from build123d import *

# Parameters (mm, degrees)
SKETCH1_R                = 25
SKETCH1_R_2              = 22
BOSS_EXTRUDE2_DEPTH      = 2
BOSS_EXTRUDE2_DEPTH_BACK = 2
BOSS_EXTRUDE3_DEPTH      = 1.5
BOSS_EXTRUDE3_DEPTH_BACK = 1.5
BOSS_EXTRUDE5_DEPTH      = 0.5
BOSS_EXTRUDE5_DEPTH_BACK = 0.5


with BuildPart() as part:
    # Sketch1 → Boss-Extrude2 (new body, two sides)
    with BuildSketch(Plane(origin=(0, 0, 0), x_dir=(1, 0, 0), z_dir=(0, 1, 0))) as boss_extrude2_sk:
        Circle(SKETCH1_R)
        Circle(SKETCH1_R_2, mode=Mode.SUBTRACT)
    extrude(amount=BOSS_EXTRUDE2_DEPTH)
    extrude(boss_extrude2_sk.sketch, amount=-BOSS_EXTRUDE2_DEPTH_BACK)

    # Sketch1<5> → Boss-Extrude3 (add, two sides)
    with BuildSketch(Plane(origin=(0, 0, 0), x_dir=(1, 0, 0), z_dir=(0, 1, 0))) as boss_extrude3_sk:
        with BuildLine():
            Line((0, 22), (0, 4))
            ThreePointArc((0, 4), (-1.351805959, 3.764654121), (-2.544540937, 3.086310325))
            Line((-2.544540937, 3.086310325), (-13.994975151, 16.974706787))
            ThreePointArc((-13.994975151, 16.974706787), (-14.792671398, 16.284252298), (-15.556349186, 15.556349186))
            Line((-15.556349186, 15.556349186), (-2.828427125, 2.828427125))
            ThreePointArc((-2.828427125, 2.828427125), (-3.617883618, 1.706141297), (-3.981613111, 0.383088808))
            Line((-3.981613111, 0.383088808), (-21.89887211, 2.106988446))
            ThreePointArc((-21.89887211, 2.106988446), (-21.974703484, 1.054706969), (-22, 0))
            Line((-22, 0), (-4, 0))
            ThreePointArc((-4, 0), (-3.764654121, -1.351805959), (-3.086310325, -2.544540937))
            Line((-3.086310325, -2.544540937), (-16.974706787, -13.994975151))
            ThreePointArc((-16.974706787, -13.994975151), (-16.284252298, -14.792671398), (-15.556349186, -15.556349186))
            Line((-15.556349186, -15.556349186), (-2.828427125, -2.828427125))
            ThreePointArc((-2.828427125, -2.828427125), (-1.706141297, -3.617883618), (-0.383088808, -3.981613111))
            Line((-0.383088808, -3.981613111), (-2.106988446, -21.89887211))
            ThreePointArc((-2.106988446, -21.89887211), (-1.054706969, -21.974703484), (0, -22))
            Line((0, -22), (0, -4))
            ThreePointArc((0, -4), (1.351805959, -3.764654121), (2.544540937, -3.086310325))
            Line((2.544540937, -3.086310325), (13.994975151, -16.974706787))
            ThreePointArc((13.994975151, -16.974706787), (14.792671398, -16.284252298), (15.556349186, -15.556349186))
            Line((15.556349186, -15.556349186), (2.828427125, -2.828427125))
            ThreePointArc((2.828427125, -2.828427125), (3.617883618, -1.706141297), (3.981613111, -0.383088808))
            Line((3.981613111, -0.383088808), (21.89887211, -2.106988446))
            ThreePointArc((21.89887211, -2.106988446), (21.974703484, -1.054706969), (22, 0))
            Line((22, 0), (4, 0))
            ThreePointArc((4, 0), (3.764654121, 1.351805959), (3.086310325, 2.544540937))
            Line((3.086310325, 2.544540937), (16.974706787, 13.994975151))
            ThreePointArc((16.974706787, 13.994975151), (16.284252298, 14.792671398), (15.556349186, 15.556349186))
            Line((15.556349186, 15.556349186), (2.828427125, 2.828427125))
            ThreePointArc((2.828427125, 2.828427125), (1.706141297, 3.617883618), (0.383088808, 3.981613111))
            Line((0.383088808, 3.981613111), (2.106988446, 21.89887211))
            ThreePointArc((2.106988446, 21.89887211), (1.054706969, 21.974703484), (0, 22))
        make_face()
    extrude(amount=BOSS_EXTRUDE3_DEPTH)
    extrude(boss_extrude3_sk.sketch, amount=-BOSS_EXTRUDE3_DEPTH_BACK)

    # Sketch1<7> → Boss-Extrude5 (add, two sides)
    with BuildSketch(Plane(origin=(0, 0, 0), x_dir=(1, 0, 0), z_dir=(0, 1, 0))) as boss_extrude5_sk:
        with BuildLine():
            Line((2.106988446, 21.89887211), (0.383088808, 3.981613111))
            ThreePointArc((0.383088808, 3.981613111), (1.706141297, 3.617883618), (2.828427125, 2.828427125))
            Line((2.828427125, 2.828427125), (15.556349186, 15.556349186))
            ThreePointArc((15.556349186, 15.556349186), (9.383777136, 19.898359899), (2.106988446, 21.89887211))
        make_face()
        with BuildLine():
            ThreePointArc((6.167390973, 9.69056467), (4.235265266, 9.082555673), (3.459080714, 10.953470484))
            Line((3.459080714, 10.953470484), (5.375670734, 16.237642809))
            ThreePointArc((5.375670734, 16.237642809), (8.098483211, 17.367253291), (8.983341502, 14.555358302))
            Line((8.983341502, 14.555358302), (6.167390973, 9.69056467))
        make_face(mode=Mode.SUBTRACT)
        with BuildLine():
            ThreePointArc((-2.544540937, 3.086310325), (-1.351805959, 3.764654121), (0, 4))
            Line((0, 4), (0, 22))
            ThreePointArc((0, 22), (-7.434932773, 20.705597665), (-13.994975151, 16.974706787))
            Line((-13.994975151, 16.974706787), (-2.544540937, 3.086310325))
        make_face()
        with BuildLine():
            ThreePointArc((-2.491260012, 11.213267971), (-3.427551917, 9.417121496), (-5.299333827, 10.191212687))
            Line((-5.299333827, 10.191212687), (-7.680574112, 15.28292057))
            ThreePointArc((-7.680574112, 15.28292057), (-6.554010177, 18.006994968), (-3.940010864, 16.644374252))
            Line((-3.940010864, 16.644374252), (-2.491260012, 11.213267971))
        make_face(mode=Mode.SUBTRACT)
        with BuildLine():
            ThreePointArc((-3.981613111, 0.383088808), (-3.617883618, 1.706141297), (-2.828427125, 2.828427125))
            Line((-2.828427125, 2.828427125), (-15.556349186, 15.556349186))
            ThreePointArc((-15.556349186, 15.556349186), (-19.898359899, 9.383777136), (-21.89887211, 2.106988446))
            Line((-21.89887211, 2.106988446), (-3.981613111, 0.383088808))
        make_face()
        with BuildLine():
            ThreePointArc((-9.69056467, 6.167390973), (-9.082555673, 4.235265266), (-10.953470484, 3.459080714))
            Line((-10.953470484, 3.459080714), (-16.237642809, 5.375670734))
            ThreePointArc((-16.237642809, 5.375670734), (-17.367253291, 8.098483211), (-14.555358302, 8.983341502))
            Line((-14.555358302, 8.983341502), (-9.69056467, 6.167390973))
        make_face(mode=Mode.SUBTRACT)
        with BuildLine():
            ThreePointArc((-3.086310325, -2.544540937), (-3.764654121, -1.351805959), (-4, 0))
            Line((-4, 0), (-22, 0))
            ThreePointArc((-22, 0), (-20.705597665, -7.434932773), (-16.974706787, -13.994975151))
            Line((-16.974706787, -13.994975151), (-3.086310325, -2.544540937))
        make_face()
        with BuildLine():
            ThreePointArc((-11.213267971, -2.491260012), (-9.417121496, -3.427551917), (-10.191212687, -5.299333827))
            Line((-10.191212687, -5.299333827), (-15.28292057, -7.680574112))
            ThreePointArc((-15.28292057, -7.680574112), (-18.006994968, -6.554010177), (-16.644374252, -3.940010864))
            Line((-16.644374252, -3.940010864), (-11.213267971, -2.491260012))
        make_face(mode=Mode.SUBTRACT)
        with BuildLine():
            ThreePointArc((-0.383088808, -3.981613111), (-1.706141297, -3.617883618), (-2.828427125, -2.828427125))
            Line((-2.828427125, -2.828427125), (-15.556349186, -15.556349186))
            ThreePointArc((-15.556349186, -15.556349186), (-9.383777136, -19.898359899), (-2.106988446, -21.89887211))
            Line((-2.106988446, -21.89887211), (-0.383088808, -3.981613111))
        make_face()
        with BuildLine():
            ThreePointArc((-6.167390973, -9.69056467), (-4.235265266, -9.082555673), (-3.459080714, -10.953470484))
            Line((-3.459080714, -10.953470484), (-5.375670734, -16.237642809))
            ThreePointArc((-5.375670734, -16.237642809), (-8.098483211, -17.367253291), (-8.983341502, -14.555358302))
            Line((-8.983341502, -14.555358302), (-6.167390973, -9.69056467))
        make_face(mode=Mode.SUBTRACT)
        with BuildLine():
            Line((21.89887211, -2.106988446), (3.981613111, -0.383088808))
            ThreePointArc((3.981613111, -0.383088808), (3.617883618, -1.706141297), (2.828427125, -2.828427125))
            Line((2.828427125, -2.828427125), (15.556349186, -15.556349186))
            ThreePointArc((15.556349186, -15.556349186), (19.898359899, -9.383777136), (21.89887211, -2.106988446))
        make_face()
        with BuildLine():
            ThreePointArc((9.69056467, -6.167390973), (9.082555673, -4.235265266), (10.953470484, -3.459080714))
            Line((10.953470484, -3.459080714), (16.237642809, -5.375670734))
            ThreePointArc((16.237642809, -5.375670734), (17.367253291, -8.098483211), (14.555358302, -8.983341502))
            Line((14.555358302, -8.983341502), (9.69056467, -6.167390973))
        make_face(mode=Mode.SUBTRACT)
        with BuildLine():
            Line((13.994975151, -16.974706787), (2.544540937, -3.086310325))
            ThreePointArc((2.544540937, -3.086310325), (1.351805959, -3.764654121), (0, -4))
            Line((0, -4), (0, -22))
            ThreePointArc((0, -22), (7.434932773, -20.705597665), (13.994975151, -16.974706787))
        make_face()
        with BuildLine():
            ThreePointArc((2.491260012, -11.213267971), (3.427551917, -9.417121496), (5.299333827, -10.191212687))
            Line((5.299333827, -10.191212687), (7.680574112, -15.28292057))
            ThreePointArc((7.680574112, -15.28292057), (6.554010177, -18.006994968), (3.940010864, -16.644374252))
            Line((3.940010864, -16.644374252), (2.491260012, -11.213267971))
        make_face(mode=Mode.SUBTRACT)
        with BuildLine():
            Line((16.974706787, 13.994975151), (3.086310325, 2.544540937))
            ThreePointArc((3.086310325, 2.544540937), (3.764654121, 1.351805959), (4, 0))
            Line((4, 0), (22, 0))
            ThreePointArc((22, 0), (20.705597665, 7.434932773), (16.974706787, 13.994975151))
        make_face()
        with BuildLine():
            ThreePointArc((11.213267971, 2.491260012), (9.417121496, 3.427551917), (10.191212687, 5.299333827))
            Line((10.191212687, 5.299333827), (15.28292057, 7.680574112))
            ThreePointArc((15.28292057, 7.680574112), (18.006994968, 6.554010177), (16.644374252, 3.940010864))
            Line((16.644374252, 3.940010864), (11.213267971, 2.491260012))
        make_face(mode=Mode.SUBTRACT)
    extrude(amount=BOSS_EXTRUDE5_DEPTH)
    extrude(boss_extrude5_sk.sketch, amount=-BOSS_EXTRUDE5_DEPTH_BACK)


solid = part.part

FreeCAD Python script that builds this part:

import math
import FreeCAD as App
import Part
import Sketcher
from FreeCAD import Vector

doc = App.newDocument("Part")
body = doc.addObject("PartDesign::Body", "Body")

# Sketch on XZ plane
sketch1 = body.newObject("Sketcher::SketchObject", "Sketch")
sketch1.AttachmentSupport = (doc.getObject("XZ_Plane"), [""])
sketch1.MapMode = "FlatFace"
sketch1.addGeometry(Part.Circle(Vector(0, 0, 0), Vector(0, 0, 1), 25), False)
sketch1.addGeometry(Part.Circle(Vector(0, 0, 0), Vector(0, 0, 1), 22), False)
sketch1.addConstraint(Sketcher.Constraint("Coincident", 0, 3, -1, 1))
sketch1.addConstraint(Sketcher.Constraint("Coincident", 1, 3, -1, 1))
sketch1.addConstraint(Sketcher.Constraint("Diameter", 0, 50.0))
sketch1.addConstraint(Sketcher.Constraint("Diameter", 1, 44.0))
pad1 = body.newObject("PartDesign::Pad", "Pad")
pad1.Profile = sketch1
pad1.Type = "TwoLengths"
pad1.Length = 2
pad1.Length2 = 2
pad1.Reversed = True

# Sketch on XZ plane
sketch2 = body.newObject("Sketcher::SketchObject", "Sketch001")
sketch2.AttachmentSupport = (doc.getObject("XZ_Plane"), [""])
sketch2.MapMode = "FlatFace"
sketch2.addGeometry(Part.LineSegment(Vector(0, -22, 0), Vector(0, -4, 0)), False)
sketch2.addGeometry(Part.ArcOfCircle(Part.Circle(Vector(0, 0, 0), Vector(0, 0, 1), 4), math.radians(-130), math.radians(-90)), False)
sketch2.addGeometry(Part.LineSegment(Vector(-2.5, -3.1, 0), Vector(-14, -17, 0)), False)
sketch2.addGeometry(Part.ArcOfCircle(Part.Circle(Vector(0, 0, 0), Vector(0, 0, 1), 22), math.radians(-135), math.radians(-129.5)), False)
sketch2.addGeometry(Part.LineSegment(Vector(-15.6, -15.6, 0), Vector(-2.8, -2.8, 0)), False)
sketch2.addGeometry(Part.ArcOfCircle(Part.Circle(Vector(0, 0, 0), Vector(0, 0, 1), 4), math.radians(-175), math.radians(-135)), False)
sketch2.addGeometry(Part.LineSegment(Vector(-4, -0.4, 0), Vector(-21.9, -2.1, 0)), False)
sketch2.addGeometry(Part.ArcOfCircle(Part.Circle(Vector(0, 0, 0), Vector(0, 0, 1), 22), math.radians(180), math.radians(185.5)), False)
sketch2.addGeometry(Part.LineSegment(Vector(-22, 0, 0), Vector(-4, 0, 0)), False)
sketch2.addGeometry(Part.ArcOfCircle(Part.Circle(Vector(0, 0, 0), Vector(0, 0, 1), 4), math.radians(140), math.radians(180)), False)
sketch2.addGeometry(Part.LineSegment(Vector(-3.1, 2.5, 0), Vector(-17, 14, 0)), False)
sketch2.addGeometry(Part.ArcOfCircle(Part.Circle(Vector(0, 0, 0), Vector(0, 0, 1), 22), math.radians(135), math.radians(140.5)), False)
sketch2.addGeometry(Part.LineSegment(Vector(-15.6, 15.6, 0), Vector(-2.8, 2.8, 0)), False)
sketch2.addGeometry(Part.ArcOfCircle(Part.Circle(Vector(0, 0, 0), Vector(0, 0, 1), 4), math.radians(95), math.radians(135)), False)
sketch2.addGeometry(Part.LineSegment(Vector(-0.4, 4, 0), Vector(-2.1, 21.9, 0)), False)
sketch2.addGeometry(Part.ArcOfCircle(Part.Circle(Vector(0, 0, 0), Vector(0, 0, 1), 22), math.radians(90), math.radians(95.5)), False)
sketch2.addGeometry(Part.LineSegment(Vector(0, 22, 0), Vector(0, 4, 0)), False)
sketch2.addGeometry(Part.ArcOfCircle(Part.Circle(Vector(0, 0, 0), Vector(0, 0, 1), 4), math.radians(50), math.radians(90)), False)
sketch2.addGeometry(Part.LineSegment(Vector(2.5, 3.1, 0), Vector(14, 17, 0)), False)
sketch2.addGeometry(Part.ArcOfCircle(Part.Circle(Vector(0, 0, 0), Vector(0, 0, 1), 22), math.radians(45), math.radians(50.5)), False)
sketch2.addGeometry(Part.LineSegment(Vector(15.6, 15.6, 0), Vector(2.8, 2.8, 0)), False)
sketch2.addGeometry(Part.ArcOfCircle(Part.Circle(Vector(0, 0, 0), Vector(0, 0, 1), 4), math.radians(5), math.radians(45)), False)
sketch2.addGeometry(Part.LineSegment(Vector(4, 0.4, 0), Vector(21.9, 2.1, 0)), False)
sketch2.addGeometry(Part.ArcOfCircle(Part.Circle(Vector(0, 0, 0), Vector(0, 0, 1), 22), math.radians(0), math.radians(5.5)), False)
sketch2.addGeometry(Part.LineSegment(Vector(22, 0, 0), Vector(4, 0, 0)), False)
sketch2.addGeometry(Part.ArcOfCircle(Part.Circle(Vector(0, 0, 0), Vector(0, 0, 1), 4), math.radians(-40), math.radians(0)), False)
sketch2.addGeometry(Part.LineSegment(Vector(3.1, -2.5, 0), Vector(17, -14, 0)), False)
sketch2.addGeometry(Part.ArcOfCircle(Part.Circle(Vector(0, 0, 0), Vector(0, 0, 1), 22), math.radians(-45), math.radians(-39.5)), False)
sketch2.addGeometry(Part.LineSegment(Vector(15.6, -15.6, 0), Vector(2.8, -2.8, 0)), False)
sketch2.addGeometry(Part.ArcOfCircle(Part.Circle(Vector(0, 0, 0), Vector(0, 0, 1), 4), math.radians(-85), math.radians(-45)), False)
sketch2.addGeometry(Part.LineSegment(Vector(0.4, -4, 0), Vector(2.1, -21.9, 0)), False)
sketch2.addGeometry(Part.ArcOfCircle(Part.Circle(Vector(0, 0, 0), Vector(0, 0, 1), 22), math.radians(-90), math.radians(-84.5)), False)
sketch2.addConstraint(Sketcher.Constraint("Coincident", 0, 2, 1, 2))
sketch2.addConstraint(Sketcher.Constraint("Coincident", 1, 1, 2, 1))
sketch2.addConstraint(Sketcher.Constraint("Coincident", 2, 2, 3, 2))
sketch2.addConstraint(Sketcher.Constraint("Coincident", 3, 1, 4, 1))
sketch2.addConstraint(Sketcher.Constraint("Coincident", 4, 2, 5, 2))
sketch2.addConstraint(Sketcher.Constraint("Coincident", 5, 1, 6, 1))
sketch2.addConstraint(Sketcher.Constraint("Coincident", 6, 2, 7, 2))
sketch2.addConstraint(Sketcher.Constraint("Coincident", 7, 1, 8, 1))
sketch2.addConstraint(Sketcher.Constraint("Coincident", 8, 2, 9, 2))
sketch2.addConstraint(Sketcher.Constraint("Coincident", 9, 1, 10, 1))
sketch2.addConstraint(Sketcher.Constraint("Coincident", 10, 2, 11, 2))
sketch2.addConstraint(Sketcher.Constraint("Coincident", 11, 1, 12, 1))
sketch2.addConstraint(Sketcher.Constraint("Coincident", 12, 2, 13, 2))
sketch2.addConstraint(Sketcher.Constraint("Coincident", 13, 1, 14, 1))
sketch2.addConstraint(Sketcher.Constraint("Coincident", 14, 2, 15, 2))
sketch2.addConstraint(Sketcher.Constraint("Coincident", 15, 1, 16, 1))
sketch2.addConstraint(Sketcher.Constraint("Coincident", 16, 2, 17, 2))
sketch2.addConstraint(Sketcher.Constraint("Coincident", 17, 1, 18, 1))
sketch2.addConstraint(Sketcher.Constraint("Coincident", 18, 2, 19, 2))
sketch2.addConstraint(Sketcher.Constraint("Coincident", 19, 1, 20, 1))
sketch2.addConstraint(Sketcher.Constraint("Coincident", 20, 2, 21, 2))
sketch2.addConstraint(Sketcher.Constraint("Coincident", 21, 1, 22, 1))
sketch2.addConstraint(Sketcher.Constraint("Coincident", 22, 2, 23, 2))
sketch2.addConstraint(Sketcher.Constraint("Coincident", 23, 1, 24, 1))
sketch2.addConstraint(Sketcher.Constraint("Coincident", 24, 2, 25, 2))
sketch2.addConstraint(Sketcher.Constraint("Coincident", 25, 1, 26, 1))
sketch2.addConstraint(Sketcher.Constraint("Coincident", 26, 2, 27, 2))
sketch2.addConstraint(Sketcher.Constraint("Coincident", 27, 1, 28, 1))
sketch2.addConstraint(Sketcher.Constraint("Coincident", 28, 2, 29, 2))
sketch2.addConstraint(Sketcher.Constraint("Coincident", 29, 1, 30, 1))
sketch2.addConstraint(Sketcher.Constraint("Coincident", 30, 2, 31, 2))
sketch2.addConstraint(Sketcher.Constraint("Coincident", 31, 1, 0, 1))
sketch2.addConstraint(Sketcher.Constraint("Vertical", 0))
sketch2.addConstraint(Sketcher.Constraint("Horizontal", 8))
sketch2.addConstraint(Sketcher.Constraint("Vertical", 16))
sketch2.addConstraint(Sketcher.Constraint("Horizontal", 24))
sketch2.addConstraint(Sketcher.Constraint("Coincident", 1, 3, -1, 1))
sketch2.addConstraint(Sketcher.Constraint("Coincident", 3, 3, -1, 1))
sketch2.addConstraint(Sketcher.Constraint("Coincident", 5, 3, -1, 1))
sketch2.addConstraint(Sketcher.Constraint("Coincident", 7, 3, -1, 1))
sketch2.addConstraint(Sketcher.Constraint("Coincident", 9, 3, -1, 1))
sketch2.addConstraint(Sketcher.Constraint("Coincident", 11, 3, -1, 1))
sketch2.addConstraint(Sketcher.Constraint("Coincident", 13, 3, -1, 1))
sketch2.addConstraint(Sketcher.Constraint("Coincident", 15, 3, -1, 1))
sketch2.addConstraint(Sketcher.Constraint("Coincident", 17, 3, -1, 1))
sketch2.addConstraint(Sketcher.Constraint("Coincident", 19, 3, -1, 1))
sketch2.addConstraint(Sketcher.Constraint("Coincident", 21, 3, -1, 1))
sketch2.addConstraint(Sketcher.Constraint("Coincident", 23, 3, -1, 1))
sketch2.addConstraint(Sketcher.Constraint("Coincident", 25, 3, -1, 1))
sketch2.addConstraint(Sketcher.Constraint("Coincident", 27, 3, -1, 1))
sketch2.addConstraint(Sketcher.Constraint("Coincident", 29, 3, -1, 1))
sketch2.addConstraint(Sketcher.Constraint("Coincident", 31, 3, -1, 1))
sketch2.addConstraint(Sketcher.Constraint("Equal", 1, 5))
sketch2.addConstraint(Sketcher.Constraint("Equal", 3, 7))
sketch2.addConstraint(Sketcher.Constraint("Equal", 5, 9))
sketch2.addConstraint(Sketcher.Constraint("Equal", 7, 11))
sketch2.addConstraint(Sketcher.Constraint("Equal", 9, 13))
sketch2.addConstraint(Sketcher.Constraint("Equal", 11, 15))
sketch2.addConstraint(Sketcher.Constraint("Equal", 13, 17))
sketch2.addConstraint(Sketcher.Constraint("Equal", 15, 19))
sketch2.addConstraint(Sketcher.Constraint("Equal", 17, 21))
sketch2.addConstraint(Sketcher.Constraint("Equal", 19, 23))
sketch2.addConstraint(Sketcher.Constraint("Equal", 21, 25))
sketch2.addConstraint(Sketcher.Constraint("Equal", 23, 27))
sketch2.addConstraint(Sketcher.Constraint("Equal", 25, 29))
sketch2.addConstraint(Sketcher.Constraint("Equal", 27, 31))
sketch2.addConstraint(Sketcher.Constraint("PointOnObject", 0, 2, -2))
sketch2.addConstraint(Sketcher.Constraint("PointOnObject", 7, 1, -1))
sketch2.addConstraint(Sketcher.Constraint("PointOnObject", 15, 1, -2))
sketch2.addConstraint(Sketcher.Constraint("PointOnObject", 23, 1, -1))
sketch2.addConstraint(Sketcher.Constraint("Perpendicular", 2, 10))
sketch2.addConstraint(Sketcher.Constraint("Perpendicular", 4, 12))
sketch2.addConstraint(Sketcher.Constraint("Perpendicular", 6, 14))
sketch2.addConstraint(Sketcher.Constraint("Perpendicular", 10, 18))
sketch2.addConstraint(Sketcher.Constraint("Perpendicular", 12, 20))
sketch2.addConstraint(Sketcher.Constraint("Perpendicular", 14, 22))
sketch2.addConstraint(Sketcher.Constraint("Perpendicular", 18, 26))
sketch2.addConstraint(Sketcher.Constraint("Perpendicular", 20, 28))
sketch2.addConstraint(Sketcher.Constraint("Perpendicular", 22, 30))
sketch2.addConstraint(Sketcher.Constraint("Horizontal", 11, 1, 19, 1))
sketch2.addConstraint(Sketcher.Constraint("Horizontal", 12, 2, 20, 2))
sketch2.addConstraint(Sketcher.Constraint("Horizontal", 3, 1, 27, 1))
sketch2.addConstraint(Sketcher.Constraint("Vertical", 3, 1, 11, 1))
sketch2.addConstraint(Sketcher.Constraint("Radius", 1, 4.0))
sketch2.addConstraint(Sketcher.Constraint("Radius", 3, 22.0))
sketch2.addConstraint(Sketcher.Constraint("DistanceY", 6, 2, 5, 1, 1.7239))
sketch2.addConstraint(Sketcher.Constraint("DistanceX", 1, 1, -1, 1, 2.544541))
sketch2.addConstraint(Sketcher.Constraint("DistanceX", 3, 1, -1, 1, 15.556349))
sketch2.addConstraint(Sketcher.Constraint("DistanceY", 5, 1, -1, 1, 0.383089))
sketch2.addConstraint(Sketcher.Constraint("DistanceX", 9, 1, -1, 1, 3.08631))
sketch2.addConstraint(Sketcher.Constraint("DistanceX", 13, 1, -1, 1, 0.383089))
sketch2.addConstraint(Sketcher.Constraint("DistanceX", -1, 1, 17, 1, 2.544541))
sketch2.addConstraint(Sketcher.Constraint("DistanceY", -1, 1, 21, 1, 0.383089))
sketch2.addConstraint(Sketcher.Constraint("DistanceX", -1, 1, 25, 1, 3.08631))
sketch2.addConstraint(Sketcher.Constraint("DistanceX", -1, 1, 29, 1, 0.383089))
sketch2.addConstraint(Sketcher.Constraint("DistanceY", 2, 2, 6, 2, 14.867718))
pad2 = body.newObject("PartDesign::Pad", "Pad001")
pad2.Profile = sketch2
pad2.Type = "TwoLengths"
pad2.Length = 1.5
pad2.Length2 = 1.5
pad2.Reversed = True

# Sketch on XZ plane
sketch3 = body.newObject("Sketcher::SketchObject", "Sketch002")
sketch3.AttachmentSupport = (doc.getObject("XZ_Plane"), [""])
sketch3.MapMode = "FlatFace"
sketch3.addGeometry(Part.LineSegment(Vector(2.1, -21.9, 0), Vector(0.4, -4, 0)), False)
sketch3.addGeometry(Part.ArcOfCircle(Part.Circle(Vector(0, 0, 0), Vector(0, 0, 1), 4), math.radians(-85), math.radians(-45)), False)
sketch3.addGeometry(Part.LineSegment(Vector(2.8, -2.8, 0), Vector(15.6, -15.6, 0)), False)
sketch3.addGeometry(Part.ArcOfCircle(Part.Circle(Vector(0, 0, 0), Vector(0, 0, 1), 22), math.radians(-85), math.radians(-45)), False)
sketch3.addGeometry(Part.LineSegment(Vector(9, -14.6, 0), Vector(6.2, -9.7, 0)), False)
sketch3.addGeometry(Part.ArcOfCircle(Part.Circle(Vector(4.9, -10.4, 0), Vector(0, 0, 1), 1.5), math.radians(30), math.radians(200)), False)
sketch3.addGeometry(Part.LineSegment(Vector(3.5, -11, 0), Vector(5.4, -16.2, 0)), False)
sketch3.addGeometry(Part.ArcOfCircle(Part.Circle(Vector(7.3, -15.6, 0), Vector(0, 0, 1), 2), math.radians(-160), math.radians(30)), False)
sketch3.addGeometry(Part.ArcOfCircle(Part.Circle(Vector(0, 0, 0), Vector(0, 0, 1), 4), math.radians(-130), math.radians(-90)), False)
sketch3.addGeometry(Part.LineSegment(Vector(0, -4, 0), Vector(0, -22, 0)), False)
sketch3.addGeometry(Part.ArcOfCircle(Part.Circle(Vector(0, 0, 0), Vector(0, 0, 1), 22), math.radians(-130), math.radians(-90)), False)
sketch3.addGeometry(Part.LineSegment(Vector(-14, -17, 0), Vector(-2.5, -3.1, 0)), False)
sketch3.addGeometry(Part.LineSegment(Vector(-3.9, -16.6, 0), Vector(-2.5, -11.2, 0)), False)
sketch3.addGeometry(Part.ArcOfCircle(Part.Circle(Vector(-3.9, -10.8, 0), Vector(0, 0, 1), 1.5), math.radians(-15), math.radians(155)), False)
sketch3.addGeometry(Part.LineSegment(Vector(-5.3, -10.2, 0), Vector(-7.7, -15.3, 0)), False)
sketch3.addGeometry(Part.ArcOfCircle(Part.Circle(Vector(-5.9, -16.1, 0), Vector(0, 0, 1), 2), math.radians(155), math.radians(345)), False)
sketch3.addGeometry(Part.ArcOfCircle(Part.Circle(Vector(0, 0, 0), Vector(0, 0, 1), 4), math.radians(-175), math.radians(-135)), False)
sketch3.addGeometry(Part.LineSegment(Vector(-2.8, -2.8, 0), Vector(-15.6, -15.6, 0)), False)
sketch3.addGeometry(Part.ArcOfCircle(Part.Circle(Vector(0, 0, 0), Vector(0, 0, 1), 22), math.radians(-175), math.radians(-135)), False)
sketch3.addGeometry(Part.LineSegment(Vector(-21.9, -2.1, 0), Vector(-4, -0.4, 0)), False)
sketch3.addGeometry(Part.LineSegment(Vector(-14.6, -9, 0), Vector(-9.7, -6.2, 0)), False)
sketch3.addGeometry(Part.ArcOfCircle(Part.Circle(Vector(-10.4, -4.9, 0), Vector(0, 0, 1), 1.5), math.radians(-60), math.radians(110)), False)
sketch3.addGeometry(Part.LineSegment(Vector(-11, -3.5, 0), Vector(-16.2, -5.4, 0)), False)
sketch3.addGeometry(Part.ArcOfCircle(Part.Circle(Vector(-15.6, -7.3, 0), Vector(0, 0, 1), 2), math.radians(110), math.radians(300)), False)
sketch3.addGeometry(Part.ArcOfCircle(Part.Circle(Vector(0, 0, 0), Vector(0, 0, 1), 4), math.radians(140), math.radians(180)), False)
sketch3.addGeometry(Part.LineSegment(Vector(-4, 0, 0), Vector(-22, 0, 0)), False)
sketch3.addGeometry(Part.ArcOfCircle(Part.Circle(Vector(0, 0, 0), Vector(0, 0, 1), 22), math.radians(140), math.radians(180)), False)
sketch3.addGeometry(Part.LineSegment(Vector(-17, 14, 0), Vector(-3.1, 2.5, 0)), False)
sketch3.addGeometry(Part.LineSegment(Vector(-16.6, 3.9, 0), Vector(-11.2, 2.5, 0)), False)
sketch3.addGeometry(Part.ArcOfCircle(Part.Circle(Vector(-10.8, 3.9, 0), Vector(0, 0, 1), 1.5), math.radians(-105), math.radians(65)), False)
sketch3.addGeometry(Part.LineSegment(Vector(-10.2, 5.3, 0), Vector(-15.3, 7.7, 0)), False)
sketch3.addGeometry(Part.ArcOfCircle(Part.Circle(Vector(-16.1, 5.9, 0), Vector(0, 0, 1), 2), math.radians(65), math.radians(255)), False)
sketch3.addGeometry(Part.ArcOfCircle(Part.Circle(Vector(0, 0, 0), Vector(0, 0, 1), 4), math.radians(95), math.radians(135)), False)
sketch3.addGeometry(Part.LineSegment(Vector(-2.8, 2.8, 0), Vector(-15.6, 15.6, 0)), False)
sketch3.addGeometry(Part.ArcOfCircle(Part.Circle(Vector(0, 0, 0), Vector(0, 0, 1), 22), math.radians(95), math.radians(135)), False)
sketch3.addGeometry(Part.LineSegment(Vector(-2.1, 21.9, 0), Vector(-0.4, 4, 0)), False)
sketch3.addGeometry(Part.LineSegment(Vector(-9, 14.6, 0), Vector(-6.2, 9.7, 0)), False)
sketch3.addGeometry(Part.ArcOfCircle(Part.Circle(Vector(-4.9, 10.4, 0), Vector(0, 0, 1), 1.5), math.radians(-150), math.radians(20)), False)
sketch3.addGeometry(Part.LineSegment(Vector(-3.5, 11, 0), Vector(-5.4, 16.2, 0)), False)
sketch3.addGeometry(Part.ArcOfCircle(Part.Circle(Vector(-7.3, 15.6, 0), Vector(0, 0, 1), 2), math.radians(20), math.radians(210)), False)
sketch3.addGeometry(Part.LineSegment(Vector(21.9, 2.1, 0), Vector(4, 0.4, 0)), False)
sketch3.addGeometry(Part.ArcOfCircle(Part.Circle(Vector(0, 0, 0), Vector(0, 0, 1), 4), math.radians(5), math.radians(45)), False)
sketch3.addGeometry(Part.LineSegment(Vector(2.8, 2.8, 0), Vector(15.6, 15.6, 0)), False)
sketch3.addGeometry(Part.ArcOfCircle(Part.Circle(Vector(0, 0, 0), Vector(0, 0, 1), 22), math.radians(5), math.radians(45)), False)
sketch3.addGeometry(Part.LineSegment(Vector(14.6, 9, 0), Vector(9.7, 6.2, 0)), False)
sketch3.addGeometry(Part.ArcOfCircle(Part.Circle(Vector(10.4, 4.9, 0), Vector(0, 0, 1), 1.5), math.radians(120), math.radians(290)), False)
sketch3.addGeometry(Part.LineSegment(Vector(11, 3.5, 0), Vector(16.2, 5.4, 0)), False)
sketch3.addGeometry(Part.ArcOfCircle(Part.Circle(Vector(15.6, 7.3, 0), Vector(0, 0, 1), 2), math.radians(-70), math.radians(120)), False)
sketch3.addGeometry(Part.LineSegment(Vector(14, 17, 0), Vector(2.5, 3.1, 0)), False)
sketch3.addGeometry(Part.ArcOfCircle(Part.Circle(Vector(0, 0, 0), Vector(0, 0, 1), 4), math.radians(50), math.radians(90)), False)
sketch3.addGeometry(Part.LineSegment(Vector(0, 4, 0), Vector(0, 22, 0)), False)
sketch3.addGeometry(Part.ArcOfCircle(Part.Circle(Vector(0, 0, 0), Vector(0, 0, 1), 22), math.radians(50), math.radians(90)), False)
sketch3.addGeometry(Part.LineSegment(Vector(3.9, 16.6, 0), Vector(2.5, 11.2, 0)), False)
sketch3.addGeometry(Part.ArcOfCircle(Part.Circle(Vector(3.9, 10.8, 0), Vector(0, 0, 1), 1.5), math.radians(165), math.radians(335)), False)
sketch3.addGeometry(Part.LineSegment(Vector(5.3, 10.2, 0), Vector(7.7, 15.3, 0)), False)
sketch3.addGeometry(Part.ArcOfCircle(Part.Circle(Vector(5.9, 16.1, 0), Vector(0, 0, 1), 2), math.radians(-25), math.radians(165)), False)
sketch3.addGeometry(Part.LineSegment(Vector(17, -14, 0), Vector(3.1, -2.5, 0)), False)
sketch3.addGeometry(Part.ArcOfCircle(Part.Circle(Vector(0, 0, 0), Vector(0, 0, 1), 4), math.radians(-40), math.radians(0)), False)
sketch3.addGeometry(Part.LineSegment(Vector(4, 0, 0), Vector(22, 0, 0)), False)
sketch3.addGeometry(Part.ArcOfCircle(Part.Circle(Vector(0, 0, 0), Vector(0, 0, 1), 22), math.radians(-40), math.radians(0)), False)
sketch3.addGeometry(Part.LineSegment(Vector(16.6, -3.9, 0), Vector(11.2, -2.5, 0)), False)
sketch3.addGeometry(Part.ArcOfCircle(Part.Circle(Vector(10.8, -3.9, 0), Vector(0, 0, 1), 1.5), math.radians(75), math.radians(245)), False)
sketch3.addGeometry(Part.LineSegment(Vector(10.2, -5.3, 0), Vector(15.3, -7.7, 0)), False)
sketch3.addGeometry(Part.ArcOfCircle(Part.Circle(Vector(16.1, -5.9, 0), Vector(0, 0, 1), 2), math.radians(-115), math.radians(75)), False)
sketch3.addConstraint(Sketcher.Constraint("Coincident", 0, 2, 1, 1))
sketch3.addConstraint(Sketcher.Constraint("Coincident", 1, 2, 2, 1))
sketch3.addConstraint(Sketcher.Constraint("Coincident", 2, 2, 3, 2))
sketch3.addConstraint(Sketcher.Constraint("Coincident", 3, 1, 0, 1))
sketch3.addConstraint(Sketcher.Constraint("Tangent", 4, 2, 5, 1))
sketch3.addConstraint(Sketcher.Constraint("Tangent", 5, 2, 6, 1))
sketch3.addConstraint(Sketcher.Constraint("Tangent", 6, 2, 7, 1))
sketch3.addConstraint(Sketcher.Constraint("Tangent", 7, 2, 4, 1))
sketch3.addConstraint(Sketcher.Constraint("Coincident", 8, 2, 9, 1))
sketch3.addConstraint(Sketcher.Constraint("Coincident", 9, 2, 10, 2))
sketch3.addConstraint(Sketcher.Constraint("Coincident", 10, 1, 11, 1))
sketch3.addConstraint(Sketcher.Constraint("Coincident", 11, 2, 8, 1))
sketch3.addConstraint(Sketcher.Constraint("Tangent", 12, 2, 13, 1))
sketch3.addConstraint(Sketcher.Constraint("Tangent", 13, 2, 14, 1))
sketch3.addConstraint(Sketcher.Constraint("Tangent", 14, 2, 15, 1))
sketch3.addConstraint(Sketcher.Constraint("Tangent", 15, 2, 12, 1))
sketch3.addConstraint(Sketcher.Constraint("Coincident", 16, 2, 17, 1))
sketch3.addConstraint(Sketcher.Constraint("Coincident", 17, 2, 18, 2))
sketch3.addConstraint(Sketcher.Constraint("Coincident", 18, 1, 19, 1))
sketch3.addConstraint(Sketcher.Constraint("Coincident", 19, 2, 16, 1))
sketch3.addConstraint(Sketcher.Constraint("Tangent", 20, 2, 21, 1))
sketch3.addConstraint(Sketcher.Constraint("Tangent", 21, 2, 22, 1))
sketch3.addConstraint(Sketcher.Constraint("Tangent", 22, 2, 23, 1))
sketch3.addConstraint(Sketcher.Constraint("Tangent", 23, 2, 20, 1))
sketch3.addConstraint(Sketcher.Constraint("Coincident", 24, 2, 25, 1))
sketch3.addConstraint(Sketcher.Constraint("Coincident", 25, 2, 26, 2))
sketch3.addConstraint(Sketcher.Constraint("Coincident", 26, 1, 27, 1))
sketch3.addConstraint(Sketcher.Constraint("Coincident", 27, 2, 24, 1))
sketch3.addConstraint(Sketcher.Constraint("Tangent", 28, 2, 29, 1))
sketch3.addConstraint(Sketcher.Constraint("Tangent", 29, 2, 30, 1))
sketch3.addConstraint(Sketcher.Constraint("Tangent", 30, 2, 31, 1))
sketch3.addConstraint(Sketcher.Constraint("Tangent", 31, 2, 28, 1))
sketch3.addConstraint(Sketcher.Constraint("Coincident", 32, 2, 33, 1))
sketch3.addConstraint(Sketcher.Constraint("Coincident", 33, 2, 34, 2))
sketch3.addConstraint(Sketcher.Constraint("Coincident", 34, 1, 35, 1))
sketch3.addConstraint(Sketcher.Constraint("Coincident", 35, 2, 32, 1))
sketch3.addConstraint(Sketcher.Constraint("Tangent", 36, 2, 37, 1))
sketch3.addConstraint(Sketcher.Constraint("Tangent", 37, 2, 38, 1))
sketch3.addConstraint(Sketcher.Constraint("Tangent", 38, 2, 39, 1))
sketch3.addConstraint(Sketcher.Constraint("Tangent", 39, 2, 36, 1))
sketch3.addConstraint(Sketcher.Constraint("Coincident", 40, 2, 41, 1))
sketch3.addConstraint(Sketcher.Constraint("Coincident", 41, 2, 42, 1))
sketch3.addConstraint(Sketcher.Constraint("Coincident", 42, 2, 43, 2))
sketch3.addConstraint(Sketcher.Constraint("Coincident", 43, 1, 40, 1))
sketch3.addConstraint(Sketcher.Constraint("Tangent", 44, 2, 45, 1))
sketch3.addConstraint(Sketcher.Constraint("Tangent", 45, 2, 46, 1))
sketch3.addConstraint(Sketcher.Constraint("Tangent", 46, 2, 47, 1))
sketch3.addConstraint(Sketcher.Constraint("Tangent", 47, 2, 44, 1))
sketch3.addConstraint(Sketcher.Constraint("Coincident", 48, 2, 49, 1))
sketch3.addConstraint(Sketcher.Constraint("Coincident", 49, 2, 50, 1))
sketch3.addConstraint(Sketcher.Constraint("Coincident", 50, 2, 51, 2))
sketch3.addConstraint(Sketcher.Constraint("Coincident", 51, 1, 48, 1))
sketch3.addConstraint(Sketcher.Constraint("Tangent", 52, 2, 53, 1))
sketch3.addConstraint(Sketcher.Constraint("Tangent", 53, 2, 54, 1))
sketch3.addConstraint(Sketcher.Constraint("Tangent", 54, 2, 55, 1))
sketch3.addConstraint(Sketcher.Constraint("Tangent", 55, 2, 52, 1))
sketch3.addConstraint(Sketcher.Constraint("Coincident", 56, 2, 57, 1))
sketch3.addConstraint(Sketcher.Constraint("Coincident", 57, 2, 58, 1))
sketch3.addConstraint(Sketcher.Constraint("Coincident", 58, 2, 59, 2))
sketch3.addConstraint(Sketcher.Constraint("Coincident", 59, 1, 56, 1))
sketch3.addConstraint(Sketcher.Constraint("Tangent", 60, 2, 61, 1))
sketch3.addConstraint(Sketcher.Constraint("Tangent", 61, 2, 62, 1))
sketch3.addConstraint(Sketcher.Constraint("Tangent", 62, 2, 63, 1))
sketch3.addConstraint(Sketcher.Constraint("Tangent", 63, 2, 60, 1))
sketch3.addConstraint(Sketcher.Constraint("Vertical", 9))
sketch3.addConstraint(Sketcher.Constraint("Horizontal", 25))
sketch3.addConstraint(Sketcher.Constraint("Vertical", 50))
sketch3.addConstraint(Sketcher.Constraint("Horizontal", 58))
sketch3.addConstraint(Sketcher.Constraint("Coincident", 1, 3, -1, 1))
sketch3.addConstraint(Sketcher.Constraint("Coincident", 3, 3, -1, 1))
sketch3.addConstraint(Sketcher.Constraint("Coincident", 8, 3, -1, 1))
sketch3.addConstraint(Sketcher.Constraint("Coincident", 10, 3, -1, 1))
sketch3.addConstraint(Sketcher.Constraint("Coincident", 16, 3, -1, 1))
sketch3.addConstraint(Sketcher.Constraint("Coincident", 18, 3, -1, 1))
sketch3.addConstraint(Sketcher.Constraint("Coincident", 24, 3, -1, 1))
sketch3.addConstraint(Sketcher.Constraint("Coincident", 26, 3, -1, 1))
sketch3.addConstraint(Sketcher.Constraint("Coincident", 32, 3, -1, 1))
sketch3.addConstraint(Sketcher.Constraint("Coincident", 34, 3, -1, 1))
sketch3.addConstraint(Sketcher.Constraint("Coincident", 41, 3, -1, 1))
sketch3.addConstraint(Sketcher.Constraint("Coincident", 43, 3, -1, 1))
sketch3.addConstraint(Sketcher.Constraint("Coincident", 49, 3, -1, 1))
sketch3.addConstraint(Sketcher.Constraint("Coincident", 51, 3, -1, 1))
sketch3.addConstraint(Sketcher.Constraint("Coincident", 57, 3, -1, 1))
sketch3.addConstraint(Sketcher.Constraint("Coincident", 59, 3, -1, 1))
sketch3.addConstraint(Sketcher.Constraint("Equal", 1, 8))
sketch3.addConstraint(Sketcher.Constraint("Equal", 3, 10))
sketch3.addConstraint(Sketcher.Constraint("Equal", 5, 13))
sketch3.addConstraint(Sketcher.Constraint("Equal", 7, 15))
sketch3.addConstraint(Sketcher.Constraint("Equal", 8, 16))
sketch3.addConstraint(Sketcher.Constraint("Equal", 10, 18))
sketch3.addConstraint(Sketcher.Constraint("Equal", 13, 21))
sketch3.addConstraint(Sketcher.Constraint("Equal", 15, 23))
sketch3.addConstraint(Sketcher.Constraint("Equal", 16, 24))
sketch3.addConstraint(Sketcher.Constraint("Equal", 18, 26))
sketch3.addConstraint(Sketcher.Constraint("Equal", 21, 29))
sketch3.addConstraint(Sketcher.Constraint("Equal", 23, 31))
sketch3.addConstraint(Sketcher.Constraint("Equal", 24, 32))
sketch3.addConstraint(Sketcher.Constraint("Equal", 26, 34))
sketch3.addConstraint(Sketcher.Constraint("Equal", 29, 37))
sketch3.addConstraint(Sketcher.Constraint("Equal", 31, 39))
sketch3.addConstraint(Sketcher.Constraint("Equal", 32, 41))
sketch3.addConstraint(Sketcher.Constraint("Equal", 34, 43))
sketch3.addConstraint(Sketcher.Constraint("Equal", 37, 45))
sketch3.addConstraint(Sketcher.Constraint("Equal", 39, 47))
sketch3.addConstraint(Sketcher.Constraint("Equal", 41, 49))
sketch3.addConstraint(Sketcher.Constraint("Equal", 43, 51))
sketch3.addConstraint(Sketcher.Constraint("Equal", 45, 53))
sketch3.addConstraint(Sketcher.Constraint("Equal", 47, 55))
sketch3.addConstraint(Sketcher.Constraint("Equal", 49, 57))
sketch3.addConstraint(Sketcher.Constraint("Equal", 51, 59))
sketch3.addConstraint(Sketcher.Constraint("Equal", 53, 61))
sketch3.addConstraint(Sketcher.Constraint("Equal", 55, 63))
sketch3.addConstraint(Sketcher.Constraint("Symmetric", 5, 3, 37, 3, -1, 1))
sketch3.addConstraint(Sketcher.Constraint("Symmetric", 7, 3, 39, 3, -1, 1))
sketch3.addConstraint(Sketcher.Constraint("Symmetric", 21, 3, 45, 3, -1, 1))
sketch3.addConstraint(Sketcher.Constraint("Symmetric", 23, 3, 47, 3, -1, 1))
sketch3.addConstraint(Sketcher.Constraint("Symmetric", 13, 3, 53, 3, -1, 1))
sketch3.addConstraint(Sketcher.Constraint("Symmetric", 15, 3, 55, 3, -1, 1))
sketch3.addConstraint(Sketcher.Constraint("Symmetric", 29, 3, 61, 3, -1, 1))
sketch3.addConstraint(Sketcher.Constraint("Symmetric", 31, 3, 63, 3, -1, 1))
sketch3.addConstraint(Sketcher.Constraint("PointOnObject", 8, 2, -2))
sketch3.addConstraint(Sketcher.Constraint("PointOnObject", 24, 2, -1))
sketch3.addConstraint(Sketcher.Constraint("PointOnObject", 49, 2, -2))
sketch3.addConstraint(Sketcher.Constraint("PointOnObject", 57, 2, -1))
sketch3.addConstraint(Sketcher.Constraint("Perpendicular", 2, 17))
sketch3.addConstraint(Sketcher.Constraint("Perpendicular", 0, 19))
sketch3.addConstraint(Sketcher.Constraint("Perpendicular", 4, 20))
sketch3.addConstraint(Sketcher.Constraint("Perpendicular", 6, 22))
sketch3.addConstraint(Sketcher.Constraint("Perpendicular", 11, 27))
sketch3.addConstraint(Sketcher.Constraint("Perpendicular", 12, 28))
sketch3.addConstraint(Sketcher.Constraint("Perpendicular", 14, 30))
sketch3.addConstraint(Sketcher.Constraint("Perpendicular", 17, 33))
sketch3.addConstraint(Sketcher.Constraint("Perpendicular", 19, 35))
sketch3.addConstraint(Sketcher.Constraint("Perpendicular", 35, 40))
sketch3.addConstraint(Sketcher.Constraint("Perpendicular", 33, 42))
sketch3.addConstraint(Sketcher.Constraint("Perpendicular", 27, 48))
sketch3.addConstraint(Sketcher.Constraint("Perpendicular", 48, 56))
sketch3.addConstraint(Sketcher.Constraint("Horizontal", 7, 3, 2, 2))
sketch3.addConstraint(Sketcher.Constraint("Horizontal", 1, 2, 16, 2))
sketch3.addConstraint(Sketcher.Constraint("Horizontal", 2, 2, 17, 2))
sketch3.addConstraint(Sketcher.Constraint("Horizontal", 39, 3, 33, 2))
sketch3.addConstraint(Sketcher.Constraint("Horizontal", 32, 2, 41, 2))
sketch3.addConstraint(Sketcher.Constraint("Vertical", 47, 3, 2, 2))
sketch3.addConstraint(Sketcher.Constraint("Equal", 6, 12))
sketch3.addConstraint(Sketcher.Constraint("Radius", 1, 4.0))
sketch3.addConstraint(Sketcher.Constraint("Radius", 3, 22.0))
sketch3.addConstraint(Sketcher.Constraint("Radius", 5, 1.5))
sketch3.addConstraint(Sketcher.Constraint("Radius", 7, 1.998112))
sketch3.addConstraint(Sketcher.Constraint("DistanceY", 7, 3, -1, 1, 15.556349))
sketch3.addConstraint(Sketcher.Constraint("DistanceY", 13, 3, -1, 1, 10.82666))
sketch3.addConstraint(Sketcher.Constraint("DistanceX", 29, 3, -1, 1, 10.82666))
sketch3.addConstraint(Sketcher.Constraint("DistanceX", -1, 1, 0, 2, 0.383089))
sketch3.addConstraint(Sketcher.Constraint("DistanceX", -1, 1, 3, 1, 2.106988))
sketch3.addConstraint(Sketcher.Constraint("DistanceX", -1, 1, 4, 2, 6.167391))
sketch3.addConstraint(Sketcher.Constraint("DistanceX", -1, 1, 5, 2, 3.459081))
sketch3.addConstraint(Sketcher.Constraint("DistanceY", 5, 2, -1, 1, 10.95347))
sketch3.addConstraint(Sketcher.Constraint("DistanceX", 11, 2, -1, 1, 2.544541))
sketch3.addConstraint(Sketcher.Constraint("DistanceX", 12, 2, -1, 1, 2.49126))
sketch3.addConstraint(Sketcher.Constraint("DistanceY", 14, 2, -1, 1, 15.282921))
sketch3.addConstraint(Sketcher.Constraint("DistanceY", 18, 1, -1, 1, 2.106988))
sketch3.addConstraint(Sketcher.Constraint("DistanceY", 20, 2, -1, 1, 6.167391))
sketch3.addConstraint(Sketcher.Constraint("DistanceX", 27, 2, -1, 1, 3.08631))
sketch3.addConstraint(Sketcher.Constraint("DistanceY", -1, 1, 28, 2, 2.49126))
sketch3.addConstraint(Sketcher.Constraint("DistanceX", 34, 1, -1, 1, 2.106988))
sketch3.addConstraint(Sketcher.Constraint("DistanceY", -1, 1, 40, 2, 0.383089))
sketch3.addConstraint(Sketcher.Constraint("DistanceX", -1, 1, 48, 2, 2.544541))
sketch3.addConstraint(Sketcher.Constraint("DistanceX", -1, 1, 56, 2, 3.08631))
sketch3.addConstraint(Sketcher.Constraint("DistanceX", 10, 1, -1, 1, 13.994975))
pad3 = body.newObject("PartDesign::Pad", "Pad002")
pad3.Profile = sketch3
pad3.Type = "TwoLengths"
pad3.Length = 0.5
pad3.Length2 = 0.5
pad3.Reversed = True

doc.recompute()
